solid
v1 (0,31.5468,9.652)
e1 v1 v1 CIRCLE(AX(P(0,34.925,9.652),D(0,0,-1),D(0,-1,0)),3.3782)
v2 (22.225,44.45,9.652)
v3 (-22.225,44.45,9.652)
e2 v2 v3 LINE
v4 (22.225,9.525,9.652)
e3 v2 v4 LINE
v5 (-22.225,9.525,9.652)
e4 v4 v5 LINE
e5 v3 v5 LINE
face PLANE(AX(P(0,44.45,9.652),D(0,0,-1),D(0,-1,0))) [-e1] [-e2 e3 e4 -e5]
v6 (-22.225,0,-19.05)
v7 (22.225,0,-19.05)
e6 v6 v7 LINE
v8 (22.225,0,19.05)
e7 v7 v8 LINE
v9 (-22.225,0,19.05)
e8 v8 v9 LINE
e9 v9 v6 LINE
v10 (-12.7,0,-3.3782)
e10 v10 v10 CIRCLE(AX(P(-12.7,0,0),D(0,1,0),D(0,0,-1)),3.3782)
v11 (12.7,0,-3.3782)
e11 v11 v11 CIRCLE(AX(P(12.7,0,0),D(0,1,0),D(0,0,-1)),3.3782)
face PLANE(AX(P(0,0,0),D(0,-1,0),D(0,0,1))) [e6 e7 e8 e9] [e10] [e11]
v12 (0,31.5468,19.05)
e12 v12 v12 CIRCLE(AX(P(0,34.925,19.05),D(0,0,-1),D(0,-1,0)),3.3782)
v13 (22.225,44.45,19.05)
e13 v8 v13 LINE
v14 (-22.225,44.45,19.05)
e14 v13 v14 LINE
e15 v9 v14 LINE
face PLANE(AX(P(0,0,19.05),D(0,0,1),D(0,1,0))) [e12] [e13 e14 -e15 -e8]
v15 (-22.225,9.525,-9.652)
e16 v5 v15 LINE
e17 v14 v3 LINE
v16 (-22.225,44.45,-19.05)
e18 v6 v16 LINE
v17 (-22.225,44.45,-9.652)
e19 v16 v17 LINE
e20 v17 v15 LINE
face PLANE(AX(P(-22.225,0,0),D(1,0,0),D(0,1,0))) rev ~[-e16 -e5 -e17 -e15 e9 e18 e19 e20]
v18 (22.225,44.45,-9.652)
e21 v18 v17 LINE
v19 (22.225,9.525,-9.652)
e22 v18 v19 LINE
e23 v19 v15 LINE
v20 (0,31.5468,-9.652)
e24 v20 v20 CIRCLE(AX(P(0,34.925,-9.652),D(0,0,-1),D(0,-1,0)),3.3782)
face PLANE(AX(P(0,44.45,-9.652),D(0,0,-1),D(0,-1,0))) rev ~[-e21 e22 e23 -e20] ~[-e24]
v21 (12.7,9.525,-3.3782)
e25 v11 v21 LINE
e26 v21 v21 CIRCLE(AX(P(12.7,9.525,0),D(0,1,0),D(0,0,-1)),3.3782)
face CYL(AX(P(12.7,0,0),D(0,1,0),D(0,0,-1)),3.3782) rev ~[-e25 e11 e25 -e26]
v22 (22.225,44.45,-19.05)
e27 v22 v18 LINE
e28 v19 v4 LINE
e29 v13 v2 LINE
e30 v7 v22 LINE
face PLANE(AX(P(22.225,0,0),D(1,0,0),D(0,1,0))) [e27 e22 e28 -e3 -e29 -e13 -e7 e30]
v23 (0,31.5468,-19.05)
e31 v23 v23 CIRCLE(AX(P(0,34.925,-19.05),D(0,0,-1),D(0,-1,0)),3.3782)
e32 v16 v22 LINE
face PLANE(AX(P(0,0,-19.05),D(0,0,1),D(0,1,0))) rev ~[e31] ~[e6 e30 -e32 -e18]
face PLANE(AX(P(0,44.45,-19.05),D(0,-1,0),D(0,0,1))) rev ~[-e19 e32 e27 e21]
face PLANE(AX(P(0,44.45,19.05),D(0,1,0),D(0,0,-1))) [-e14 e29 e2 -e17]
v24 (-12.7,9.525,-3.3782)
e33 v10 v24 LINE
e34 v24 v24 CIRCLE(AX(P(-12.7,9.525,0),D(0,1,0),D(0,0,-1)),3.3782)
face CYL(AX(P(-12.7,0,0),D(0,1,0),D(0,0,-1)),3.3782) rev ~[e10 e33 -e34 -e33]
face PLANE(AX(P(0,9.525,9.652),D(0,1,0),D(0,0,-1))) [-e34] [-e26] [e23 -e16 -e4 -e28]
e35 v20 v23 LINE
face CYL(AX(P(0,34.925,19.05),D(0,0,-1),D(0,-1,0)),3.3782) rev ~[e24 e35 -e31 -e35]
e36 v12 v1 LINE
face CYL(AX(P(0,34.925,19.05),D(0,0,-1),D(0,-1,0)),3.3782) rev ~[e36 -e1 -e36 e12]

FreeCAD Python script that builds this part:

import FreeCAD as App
import Part
import Sketcher
from FreeCAD import Vector
Q = App.Units.Quantity

doc = App.newDocument("Part")
body = doc.addObject("PartDesign::Body", "Body")

sketch1 = body.newObject("Sketcher::SketchObject", "Sketch")
sketch1.AttachmentSupport = (doc.getObject("YZ_Plane"), [""])
sketch1.MapMode = "FlatFace"
sketch1.addGeometry([
    Part.LineSegment(Vector(0, 19, 0), Vector(0, -19, 0)),
    Part.LineSegment(Vector(0, -19, 0), Vector(44, -19, 0)),
    Part.LineSegment(Vector(44, -19, 0), Vector(44, -10, 0)),
    Part.LineSegment(Vector(44, -10, 0), Vector(10, -10, 0)),
    Part.LineSegment(Vector(10, -10, 0), Vector(10, 10, 0)),
    Part.LineSegment(Vector(10, 10, 0), Vector(44, 10, 0)),
    Part.LineSegment(Vector(44, 10, 0), Vector(44, 19, 0)),
    Part.LineSegment(Vector(44, 19, 0), Vector(0, 19, 0)),
], False)
sketch1.addConstraint([
    Sketcher.Constraint("Coincident", 0, 2, 1, 1),
    Sketcher.Constraint("Coincident", 1, 2, 2, 1),
    Sketcher.Constraint("Coincident", 2, 2, 3, 1),
    Sketcher.Constraint("Coincident", 3, 2, 4, 1),
    Sketcher.Constraint("Coincident", 4, 2, 5, 1),
    Sketcher.Constraint("Coincident", 5, 2, 6, 1),
    Sketcher.Constraint("Coincident", 6, 2, 7, 1),
    Sketcher.Constraint("Coincident", 7, 2, 0, 1),
    Sketcher.Constraint("Vertical", 0),
    Sketcher.Constraint("Horizontal", 1),
    Sketcher.Constraint("Vertical", 2),
    Sketcher.Constraint("Horizontal", 3),
    Sketcher.Constraint("Vertical", 4),
    Sketcher.Constraint("Horizontal", 5),
    Sketcher.Constraint("Vertical", 6),
    Sketcher.Constraint("Horizontal", 7),
    Sketcher.Constraint("Symmetric", 0, 2, 7, 2, -1, 1),
    Sketcher.Constraint("Symmetric", 2, 2, 5, 2, -1),
    Sketcher.Constraint("DistanceX", 1, 1, 1, 2, Q("1.75 in")),
    Sketcher.Constraint("DistanceY", 2, 1, 2, 2, Q("0.37 in")),
    Sketcher.Constraint("DistanceY", 2, 2, -1, 1, Q("0.38 in")),
    Sketcher.Constraint("DistanceX", -1, 1, 3, 2, Q("0.375 in")),
])
pad1 = body.newObject("PartDesign::Pad", "Pad")
pad1.Profile = sketch1
pad1.Length = Q("1.75 in")
pad1.Midplane = True

sketch2 = body.newObject("Sketcher::SketchObject", "Sketch001")
sketch2.AttachmentSupport = (doc.getObject("XY_Plane"), [""])
sketch2.MapMode = "FlatFace"
sketch2.AttachmentOffset = App.Placement(Vector(0, 0, 0.75 * 25.4), App.Rotation())
sketch2.addGeometry(Part.Circle(Vector(0, 34.9, 0), Vector(0, 0, 1), 3.4), False)
sketch2.addConstraint([
    Sketcher.Constraint("PointOnObject", 0, 3, -2),
    Sketcher.Constraint("Diameter", 0, Q("0.266 in")),
    Sketcher.Constraint("DistanceY", -1, 1, 0, 3, Q("1.375 in")),
])
doc.recompute()
hole = body.newObject("PartDesign::Hole", "Hole")
hole.Profile = sketch2
hole.ThreadType = "None"
hole.Diameter = Q("0.266 in")
hole.DepthType = "ThroughAll"

sketch3 = body.newObject("Sketcher::SketchObject", "Sketch002")
sketch3.AttachmentSupport = (doc.getObject("XZ_Plane"), [""])
sketch3.MapMode = "FlatFace"
sketch3.addGeometry([
    Part.Circle(Vector(12.7, 0, 0), Vector(0, 0, 1), 3.4),
    Part.Circle(Vector(-12.7, 0, 0), Vector(0, 0, 1), 3.4),
], False)
sketch3.addConstraint([
    Sketcher.Constraint("Equal", 0, 1),
    Sketcher.Constraint("Symmetric", 0, 3, 1, 3, -1, 1),
    Sketcher.Constraint("PointOnObject", 0, 3, -1),
    Sketcher.Constraint("Diameter", 0, Q("0.266 in")),
    Sketcher.Constraint("DistanceX", 1, 3, 0, 3, Q("1 in")),
])
doc.recompute()
hole2 = body.newObject("PartDesign::Hole", "Hole001")
hole2.Profile = sketch3
hole2.ThreadType = "None"
hole2.Diameter = Q("0.266 in")
hole2.DepthType = "ThroughAll"

doc.recompute()
